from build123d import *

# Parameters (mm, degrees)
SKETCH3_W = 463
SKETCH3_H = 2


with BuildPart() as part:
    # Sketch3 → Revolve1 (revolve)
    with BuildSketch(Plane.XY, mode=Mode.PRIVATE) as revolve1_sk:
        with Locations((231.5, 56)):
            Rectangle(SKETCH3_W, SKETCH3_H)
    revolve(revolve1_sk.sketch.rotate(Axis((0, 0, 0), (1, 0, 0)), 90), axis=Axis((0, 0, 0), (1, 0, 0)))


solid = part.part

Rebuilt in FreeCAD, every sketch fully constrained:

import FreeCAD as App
import Part
import Sketcher


def add_polygon(sketch, points):
    """Adds a closed chain of lines whose ends are joined by coincident constraints."""
    first, n = sketch.GeometryCount, len(points)
    for a, b in zip(points, points[1:] + points[:1]):
        sketch.addGeometry(Part.LineSegment(App.Vector(*a, 0), App.Vector(*b, 0)), False)
    for i in range(n):
        sketch.addConstraint(Sketcher.Constraint("Coincident", first + i, 2, first + (i + 1) % n, 1))

doc = App.newDocument("Part")
body = doc.addObject("PartDesign::Body", "Body")

# Sketch on XY plane
sketch1 = body.newObject("Sketcher::SketchObject", "Sketch")
sketch1.AttachmentSupport = (doc.getObject("XY_Plane"), [""])
sketch1.MapMode = "FlatFace"
add_polygon(sketch1, [(0, 57), (0, 55), (463, 55), (463, 57)])  # lines 0-3
sketch1.addConstraint([
    Sketcher.Constraint("Vertical", 0),
    Sketcher.Constraint("Horizontal", 1),
    Sketcher.Constraint("Vertical", 2),
    Sketcher.Constraint("Horizontal", 3),
    Sketcher.Constraint("PointOnObject", 0, 2, -2),
    Sketcher.Constraint("DistanceX", 1, 1, 1, 2, 463.0),
    Sketcher.Constraint("DistanceY", 0, 2, 0, 1, 2.0),
    Sketcher.Constraint("DistanceY", -1, 1, 0, 2, 55.0),
])
revolution = body.newObject("PartDesign::Revolution", "Revolution")
revolution.Profile = sketch1
revolution.ReferenceAxis = (sketch1, ["H_Axis"])
revolution.Angle = 360

doc.recompute()
